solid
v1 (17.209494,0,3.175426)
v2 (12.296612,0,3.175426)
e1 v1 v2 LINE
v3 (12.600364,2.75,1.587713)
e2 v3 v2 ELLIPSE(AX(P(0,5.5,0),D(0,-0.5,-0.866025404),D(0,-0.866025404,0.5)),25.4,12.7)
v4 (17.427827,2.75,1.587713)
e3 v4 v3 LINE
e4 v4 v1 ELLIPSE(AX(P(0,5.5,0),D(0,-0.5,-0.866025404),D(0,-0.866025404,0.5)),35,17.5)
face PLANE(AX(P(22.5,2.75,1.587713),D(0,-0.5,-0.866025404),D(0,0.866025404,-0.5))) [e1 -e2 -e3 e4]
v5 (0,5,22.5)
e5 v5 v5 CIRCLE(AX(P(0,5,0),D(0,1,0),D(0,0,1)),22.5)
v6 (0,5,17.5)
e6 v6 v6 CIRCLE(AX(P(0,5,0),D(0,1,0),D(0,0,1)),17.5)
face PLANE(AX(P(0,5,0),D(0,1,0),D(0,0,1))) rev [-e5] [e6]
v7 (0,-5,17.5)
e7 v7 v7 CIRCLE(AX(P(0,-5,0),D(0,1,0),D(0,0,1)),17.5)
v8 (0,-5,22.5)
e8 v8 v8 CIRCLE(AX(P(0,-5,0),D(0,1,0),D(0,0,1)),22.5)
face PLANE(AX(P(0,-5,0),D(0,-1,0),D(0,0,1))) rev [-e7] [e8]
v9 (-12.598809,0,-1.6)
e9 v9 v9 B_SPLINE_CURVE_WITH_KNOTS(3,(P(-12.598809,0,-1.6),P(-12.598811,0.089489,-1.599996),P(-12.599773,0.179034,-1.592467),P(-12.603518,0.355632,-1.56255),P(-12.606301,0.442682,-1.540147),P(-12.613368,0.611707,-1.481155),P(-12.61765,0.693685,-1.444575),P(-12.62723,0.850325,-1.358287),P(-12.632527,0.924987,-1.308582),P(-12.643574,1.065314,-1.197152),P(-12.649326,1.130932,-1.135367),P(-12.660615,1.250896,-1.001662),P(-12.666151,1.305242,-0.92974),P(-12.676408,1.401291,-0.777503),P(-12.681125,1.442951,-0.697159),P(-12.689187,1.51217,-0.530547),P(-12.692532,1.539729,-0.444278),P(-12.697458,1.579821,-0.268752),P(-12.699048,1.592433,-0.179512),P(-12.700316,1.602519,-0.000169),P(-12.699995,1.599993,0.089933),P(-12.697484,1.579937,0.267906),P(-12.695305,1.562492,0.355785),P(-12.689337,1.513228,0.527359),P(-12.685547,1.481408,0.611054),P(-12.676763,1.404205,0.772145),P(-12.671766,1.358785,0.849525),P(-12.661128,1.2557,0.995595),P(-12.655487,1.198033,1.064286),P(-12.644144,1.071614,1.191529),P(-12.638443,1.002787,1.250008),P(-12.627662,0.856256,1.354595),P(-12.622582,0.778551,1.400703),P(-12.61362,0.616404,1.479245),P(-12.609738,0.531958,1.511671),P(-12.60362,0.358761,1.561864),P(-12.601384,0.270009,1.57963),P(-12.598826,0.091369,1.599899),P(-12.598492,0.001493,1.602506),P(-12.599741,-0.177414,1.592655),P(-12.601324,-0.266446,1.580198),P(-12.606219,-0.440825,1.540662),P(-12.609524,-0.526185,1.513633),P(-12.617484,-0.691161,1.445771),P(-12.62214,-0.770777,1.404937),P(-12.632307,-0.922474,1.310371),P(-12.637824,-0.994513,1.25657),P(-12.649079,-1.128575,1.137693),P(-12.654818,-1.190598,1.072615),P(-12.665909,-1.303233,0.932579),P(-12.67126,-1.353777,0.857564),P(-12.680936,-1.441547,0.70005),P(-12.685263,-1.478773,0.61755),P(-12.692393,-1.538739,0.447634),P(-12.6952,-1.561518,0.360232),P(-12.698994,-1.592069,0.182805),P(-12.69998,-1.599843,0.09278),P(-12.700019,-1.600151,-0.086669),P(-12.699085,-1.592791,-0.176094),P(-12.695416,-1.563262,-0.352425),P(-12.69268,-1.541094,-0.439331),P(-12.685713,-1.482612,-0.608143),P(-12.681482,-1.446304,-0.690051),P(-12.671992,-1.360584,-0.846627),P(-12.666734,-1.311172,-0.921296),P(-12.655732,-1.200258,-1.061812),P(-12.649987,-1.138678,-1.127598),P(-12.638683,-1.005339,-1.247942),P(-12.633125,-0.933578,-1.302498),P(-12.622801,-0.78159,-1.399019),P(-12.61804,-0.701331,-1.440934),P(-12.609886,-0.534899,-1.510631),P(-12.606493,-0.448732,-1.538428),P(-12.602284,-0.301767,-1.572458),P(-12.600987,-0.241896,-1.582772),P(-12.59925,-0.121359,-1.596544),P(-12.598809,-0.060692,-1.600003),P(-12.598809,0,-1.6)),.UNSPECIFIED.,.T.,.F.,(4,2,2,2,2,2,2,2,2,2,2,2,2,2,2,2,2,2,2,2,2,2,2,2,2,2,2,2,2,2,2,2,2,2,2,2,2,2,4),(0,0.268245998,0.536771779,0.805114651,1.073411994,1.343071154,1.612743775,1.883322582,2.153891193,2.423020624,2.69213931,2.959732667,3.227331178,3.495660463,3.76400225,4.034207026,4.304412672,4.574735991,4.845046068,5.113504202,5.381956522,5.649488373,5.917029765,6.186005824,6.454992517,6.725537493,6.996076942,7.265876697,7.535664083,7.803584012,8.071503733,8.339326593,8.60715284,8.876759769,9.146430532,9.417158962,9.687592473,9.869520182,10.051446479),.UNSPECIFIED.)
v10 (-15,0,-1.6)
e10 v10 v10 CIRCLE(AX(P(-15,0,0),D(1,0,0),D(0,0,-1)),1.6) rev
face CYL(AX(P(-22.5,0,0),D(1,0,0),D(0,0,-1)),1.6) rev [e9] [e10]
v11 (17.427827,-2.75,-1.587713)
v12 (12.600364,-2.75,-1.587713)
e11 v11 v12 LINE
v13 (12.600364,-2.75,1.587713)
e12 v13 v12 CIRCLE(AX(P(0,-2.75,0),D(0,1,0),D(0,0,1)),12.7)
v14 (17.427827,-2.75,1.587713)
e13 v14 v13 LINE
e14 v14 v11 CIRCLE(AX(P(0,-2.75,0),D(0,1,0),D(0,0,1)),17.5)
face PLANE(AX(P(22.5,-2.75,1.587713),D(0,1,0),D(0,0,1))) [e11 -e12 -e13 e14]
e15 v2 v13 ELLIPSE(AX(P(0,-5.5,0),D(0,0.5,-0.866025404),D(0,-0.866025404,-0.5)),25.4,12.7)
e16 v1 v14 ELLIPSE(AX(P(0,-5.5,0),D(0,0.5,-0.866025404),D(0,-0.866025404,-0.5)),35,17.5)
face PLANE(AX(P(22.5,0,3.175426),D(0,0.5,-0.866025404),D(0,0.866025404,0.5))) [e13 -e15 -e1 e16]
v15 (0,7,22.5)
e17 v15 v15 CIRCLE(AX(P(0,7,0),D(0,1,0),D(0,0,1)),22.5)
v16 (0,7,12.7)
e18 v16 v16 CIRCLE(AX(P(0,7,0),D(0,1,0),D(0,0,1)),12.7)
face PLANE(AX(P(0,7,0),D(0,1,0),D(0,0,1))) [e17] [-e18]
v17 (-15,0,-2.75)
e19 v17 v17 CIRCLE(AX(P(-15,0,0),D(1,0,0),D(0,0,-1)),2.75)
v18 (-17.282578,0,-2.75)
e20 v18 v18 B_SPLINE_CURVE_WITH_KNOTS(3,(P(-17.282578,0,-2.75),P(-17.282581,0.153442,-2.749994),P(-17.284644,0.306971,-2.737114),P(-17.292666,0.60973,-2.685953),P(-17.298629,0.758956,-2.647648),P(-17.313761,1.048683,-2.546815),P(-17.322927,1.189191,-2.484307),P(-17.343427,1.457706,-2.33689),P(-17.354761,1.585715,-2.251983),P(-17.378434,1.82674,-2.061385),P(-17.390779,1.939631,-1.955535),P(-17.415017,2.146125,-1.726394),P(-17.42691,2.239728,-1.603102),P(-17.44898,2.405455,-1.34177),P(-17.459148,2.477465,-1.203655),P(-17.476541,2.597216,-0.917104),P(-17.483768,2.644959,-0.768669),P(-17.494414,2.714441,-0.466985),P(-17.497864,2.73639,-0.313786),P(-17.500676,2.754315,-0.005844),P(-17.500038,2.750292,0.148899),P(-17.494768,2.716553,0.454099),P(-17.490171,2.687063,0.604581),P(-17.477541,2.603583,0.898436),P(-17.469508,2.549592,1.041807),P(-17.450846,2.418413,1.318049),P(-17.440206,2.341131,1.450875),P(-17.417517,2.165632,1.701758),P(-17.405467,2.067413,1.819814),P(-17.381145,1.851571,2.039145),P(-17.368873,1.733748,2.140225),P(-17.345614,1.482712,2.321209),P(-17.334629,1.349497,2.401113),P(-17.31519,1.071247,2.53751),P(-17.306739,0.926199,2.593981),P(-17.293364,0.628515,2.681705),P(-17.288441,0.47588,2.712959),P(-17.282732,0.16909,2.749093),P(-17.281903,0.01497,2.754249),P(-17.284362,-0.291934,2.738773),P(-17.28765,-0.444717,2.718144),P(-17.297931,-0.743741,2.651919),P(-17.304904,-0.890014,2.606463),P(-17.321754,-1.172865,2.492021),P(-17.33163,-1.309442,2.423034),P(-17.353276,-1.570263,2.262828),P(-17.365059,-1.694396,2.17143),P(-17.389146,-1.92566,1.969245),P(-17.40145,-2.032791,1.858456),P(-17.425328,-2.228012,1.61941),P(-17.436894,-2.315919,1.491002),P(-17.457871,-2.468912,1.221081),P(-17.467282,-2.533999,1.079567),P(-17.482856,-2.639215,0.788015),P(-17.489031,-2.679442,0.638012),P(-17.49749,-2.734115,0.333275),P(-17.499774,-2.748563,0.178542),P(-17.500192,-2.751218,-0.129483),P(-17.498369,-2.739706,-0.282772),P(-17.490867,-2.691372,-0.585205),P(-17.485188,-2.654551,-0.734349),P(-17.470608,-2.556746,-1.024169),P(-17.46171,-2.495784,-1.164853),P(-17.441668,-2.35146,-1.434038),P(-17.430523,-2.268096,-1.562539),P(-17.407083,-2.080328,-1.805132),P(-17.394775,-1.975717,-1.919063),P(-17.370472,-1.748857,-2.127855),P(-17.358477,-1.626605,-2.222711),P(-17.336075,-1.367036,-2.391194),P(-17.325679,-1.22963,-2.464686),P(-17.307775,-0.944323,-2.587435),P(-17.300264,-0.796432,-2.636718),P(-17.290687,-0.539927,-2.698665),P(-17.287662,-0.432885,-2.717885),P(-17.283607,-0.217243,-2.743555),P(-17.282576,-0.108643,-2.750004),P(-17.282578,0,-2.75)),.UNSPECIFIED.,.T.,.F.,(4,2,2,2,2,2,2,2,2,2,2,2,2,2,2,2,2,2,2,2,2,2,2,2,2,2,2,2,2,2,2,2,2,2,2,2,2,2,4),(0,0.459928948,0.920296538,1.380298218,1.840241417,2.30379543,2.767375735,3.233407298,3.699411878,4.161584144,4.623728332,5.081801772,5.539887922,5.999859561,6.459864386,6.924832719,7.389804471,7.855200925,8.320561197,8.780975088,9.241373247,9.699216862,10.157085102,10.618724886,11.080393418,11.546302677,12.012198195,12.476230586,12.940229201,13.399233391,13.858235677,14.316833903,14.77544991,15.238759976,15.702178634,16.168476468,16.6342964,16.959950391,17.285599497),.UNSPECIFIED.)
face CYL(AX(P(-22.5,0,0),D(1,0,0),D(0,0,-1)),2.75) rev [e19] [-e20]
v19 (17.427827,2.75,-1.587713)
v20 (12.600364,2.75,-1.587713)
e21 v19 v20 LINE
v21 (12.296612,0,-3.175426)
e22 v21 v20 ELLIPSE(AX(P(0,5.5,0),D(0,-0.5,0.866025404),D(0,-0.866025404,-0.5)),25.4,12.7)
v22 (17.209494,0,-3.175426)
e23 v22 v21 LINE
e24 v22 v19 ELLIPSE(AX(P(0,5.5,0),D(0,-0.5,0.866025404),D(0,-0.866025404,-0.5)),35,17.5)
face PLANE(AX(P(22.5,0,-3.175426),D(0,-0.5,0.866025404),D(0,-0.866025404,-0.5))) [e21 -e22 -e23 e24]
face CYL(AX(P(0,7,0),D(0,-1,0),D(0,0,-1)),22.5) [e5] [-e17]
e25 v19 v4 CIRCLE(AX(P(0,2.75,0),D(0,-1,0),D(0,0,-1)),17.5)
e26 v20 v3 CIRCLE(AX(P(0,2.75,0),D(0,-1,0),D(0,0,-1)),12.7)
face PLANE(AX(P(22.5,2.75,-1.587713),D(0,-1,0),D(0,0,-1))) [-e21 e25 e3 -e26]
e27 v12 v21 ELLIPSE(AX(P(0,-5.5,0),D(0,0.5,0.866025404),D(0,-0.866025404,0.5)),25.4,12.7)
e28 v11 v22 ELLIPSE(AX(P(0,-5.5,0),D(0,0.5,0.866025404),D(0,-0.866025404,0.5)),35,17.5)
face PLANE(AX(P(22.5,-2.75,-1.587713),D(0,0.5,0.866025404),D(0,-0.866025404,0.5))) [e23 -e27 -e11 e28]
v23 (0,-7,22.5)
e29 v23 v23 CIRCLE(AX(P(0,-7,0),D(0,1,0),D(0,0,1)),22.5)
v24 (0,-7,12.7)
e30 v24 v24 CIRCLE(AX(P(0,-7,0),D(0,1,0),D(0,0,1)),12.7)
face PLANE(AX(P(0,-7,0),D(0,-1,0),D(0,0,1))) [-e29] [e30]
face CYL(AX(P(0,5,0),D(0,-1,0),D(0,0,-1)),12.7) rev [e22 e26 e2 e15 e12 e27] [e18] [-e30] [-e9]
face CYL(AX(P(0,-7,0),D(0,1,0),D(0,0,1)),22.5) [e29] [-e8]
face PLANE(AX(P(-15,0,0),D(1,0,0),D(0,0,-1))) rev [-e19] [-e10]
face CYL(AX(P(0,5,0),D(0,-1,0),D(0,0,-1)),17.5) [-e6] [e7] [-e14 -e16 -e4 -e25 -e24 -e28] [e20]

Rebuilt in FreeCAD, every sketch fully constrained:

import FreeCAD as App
import Part
import Sketcher
Q = App.Units.Quantity


def add_polygon(sketch, points):
    """Adds a closed chain of lines whose ends are joined by coincident constraints."""
    first, n = sketch.GeometryCount, len(points)
    for a, b in zip(points, points[1:] + points[:1]):
        sketch.addGeometry(Part.LineSegment(App.Vector(*a, 0), App.Vector(*b, 0)), False)
    for i in range(n):
        sketch.addConstraint(Sketcher.Constraint("Coincident", first + i, 2, first + (i + 1) % n, 1))

doc = App.newDocument("Part")
body = doc.addObject("PartDesign::Body", "Body")

# Sketch on XZ plane
sketch1 = body.newObject("Sketcher::SketchObject", "Sketch")
sketch1.AttachmentSupport = (doc.getObject("XZ_Plane"), [""])
sketch1.MapMode = "FlatFace"
sketch1.addGeometry(Part.Circle(App.Vector(0, 0, 0), App.Vector(0, 0, 1), 18), False)
sketch1.addGeometry(Part.Circle(App.Vector(0, 0, 0), App.Vector(0, 0, 1), 13), False)
sketch1.addConstraint(Sketcher.Constraint("Coincident", 0, 3, -1, 1))
sketch1.addConstraint(Sketcher.Constraint("Coincident", 1, 3, -1, 1))
sketch1.addConstraint(Sketcher.Constraint("Diameter", 0, Q("35 mm")))
sketch1.addConstraint(Sketcher.Constraint("Diameter", 1, Q("25.4 mm")))
pad1 = body.newObject("PartDesign::Pad", "Pad")
pad1.Profile = sketch1
pad1.Length = 10
pad1.Midplane = True

# Sketch on XZ plane
sketch2 = body.newObject("Sketcher::SketchObject", "Sketch001")
sketch2.AttachmentSupport = (doc.getObject("XZ_Plane"), [""])
sketch2.MapMode = "FlatFace"
sketch2.AttachmentOffset = App.Placement(App.Vector(0, 0, -5), App.Rotation())
sketch2.addGeometry(Part.Circle(App.Vector(0, 0, 0), App.Vector(0, 0, 1), 22), False)
sketch2.addGeometry(Part.Circle(App.Vector(0, 0, 0), App.Vector(0, 0, 1), 13), False)
sketch2.addConstraint(Sketcher.Constraint("Coincident", 0, 3, -1, 1))
sketch2.addConstraint(Sketcher.Constraint("Coincident", 1, 3, -1, 1))
sketch2.addConstraint(Sketcher.Constraint("Diameter", 0, Q("45 mm")))
sketch2.addConstraint(Sketcher.Constraint("Diameter", 1, Q("25.4 mm")))
pad2 = body.newObject("PartDesign::Pad", "Pad001")
pad2.Profile = sketch2
pad2.Length = 2
pad2.Reversed = True
doc.recompute()

mirrored = body.newObject("PartDesign::Mirrored", "Mirrored")
mirrored.Originals = [pad2]
mirrored.MirrorPlane = (doc.getObject("XZ_Plane"), [""])
body.Tip = mirrored

# Sketch on YZ plane
sketch3 = body.newObject("Sketcher::SketchObject", "Sketch002")
sketch3.AttachmentSupport = (doc.getObject("YZ_Plane"), [""])
sketch3.MapMode = "FlatFace"
sketch3.addGeometry(Part.Circle(App.Vector(0, 0, 0), App.Vector(0, 0, 1), 1.6), False)
sketch3.addConstraint(Sketcher.Constraint("Coincident", 0, 3, -1, 1))
sketch3.addConstraint(Sketcher.Constraint("Diameter", 0, Q("3.2 mm")))
pocket1 = body.newObject("PartDesign::Pocket", "Pocket")
pocket1.Profile = sketch3
pocket1.Type = "ThroughAll"

# Sketch on YZ plane
sketch4 = body.newObject("Sketcher::SketchObject", "Sketch003")
sketch4.AttachmentSupport = (doc.getObject("YZ_Plane"), [""])
sketch4.MapMode = "FlatFace"
add_polygon(sketch4, [(0, -3.2), (2.8, -1.6), (2.8, 1.6), (0, 3.2), (-2.8, 1.6), (-2.8, -1.6)])  # lines 0-5
sketch4.addConstraint(Sketcher.Constraint("Vertical", 1))
sketch4.addConstraint(Sketcher.Constraint("Vertical", 4))
sketch4.addConstraint(Sketcher.Constraint("Symmetric", 0, 2, 3, 2, -1, 1))
sketch4.addConstraint(Sketcher.Constraint("Symmetric", 2, 2, 5, 2, -1, 1))
sketch4.addConstraint(Sketcher.Constraint("PointOnObject", 2, 2, -2))
sketch4.addConstraint(Sketcher.Constraint("Parallel", 2, 5))
sketch4.addConstraint(Sketcher.Constraint("Horizontal", 1, 2, 3, 2))
sketch4.addConstraint(Sketcher.Constraint("Angle", 0, Q("30 deg")))
sketch4.addConstraint(Sketcher.Constraint("DistanceX", 3, 2, 1, 2, Q("5.5 mm")))
sketch4.addConstraint(Sketcher.Constraint("DistanceY", 1, 1, 1, 2, Q("3.175426 mm")))
pocket2 = body.newObject("PartDesign::Pocket", "Pocket001")
pocket2.Profile = sketch4
pocket2.Type = "ThroughAll"
pocket2.Reversed = True

# Sketch on YZ plane
sketch5 = body.newObject("Sketcher::SketchObject", "Sketch004")
sketch5.AttachmentSupport = (doc.getObject("YZ_Plane"), [""])
sketch5.MapMode = "FlatFace"
sketch5.AttachmentOffset = App.Placement(App.Vector(0, 0, -15), App.Rotation())
sketch5.addGeometry(Part.Circle(App.Vector(0, 0, 0), App.Vector(0, 0, 1), 2.8), False)
sketch5.addConstraint(Sketcher.Constraint("Coincident", 0, 3, -1, 1))
sketch5.addConstraint(Sketcher.Constraint("Diameter", 0, Q("5.5 mm")))
pocket3 = body.newObject("PartDesign::Pocket", "Pocket002")
pocket3.Profile = sketch5
pocket3.Type = "ThroughAll"

doc.recompute()
